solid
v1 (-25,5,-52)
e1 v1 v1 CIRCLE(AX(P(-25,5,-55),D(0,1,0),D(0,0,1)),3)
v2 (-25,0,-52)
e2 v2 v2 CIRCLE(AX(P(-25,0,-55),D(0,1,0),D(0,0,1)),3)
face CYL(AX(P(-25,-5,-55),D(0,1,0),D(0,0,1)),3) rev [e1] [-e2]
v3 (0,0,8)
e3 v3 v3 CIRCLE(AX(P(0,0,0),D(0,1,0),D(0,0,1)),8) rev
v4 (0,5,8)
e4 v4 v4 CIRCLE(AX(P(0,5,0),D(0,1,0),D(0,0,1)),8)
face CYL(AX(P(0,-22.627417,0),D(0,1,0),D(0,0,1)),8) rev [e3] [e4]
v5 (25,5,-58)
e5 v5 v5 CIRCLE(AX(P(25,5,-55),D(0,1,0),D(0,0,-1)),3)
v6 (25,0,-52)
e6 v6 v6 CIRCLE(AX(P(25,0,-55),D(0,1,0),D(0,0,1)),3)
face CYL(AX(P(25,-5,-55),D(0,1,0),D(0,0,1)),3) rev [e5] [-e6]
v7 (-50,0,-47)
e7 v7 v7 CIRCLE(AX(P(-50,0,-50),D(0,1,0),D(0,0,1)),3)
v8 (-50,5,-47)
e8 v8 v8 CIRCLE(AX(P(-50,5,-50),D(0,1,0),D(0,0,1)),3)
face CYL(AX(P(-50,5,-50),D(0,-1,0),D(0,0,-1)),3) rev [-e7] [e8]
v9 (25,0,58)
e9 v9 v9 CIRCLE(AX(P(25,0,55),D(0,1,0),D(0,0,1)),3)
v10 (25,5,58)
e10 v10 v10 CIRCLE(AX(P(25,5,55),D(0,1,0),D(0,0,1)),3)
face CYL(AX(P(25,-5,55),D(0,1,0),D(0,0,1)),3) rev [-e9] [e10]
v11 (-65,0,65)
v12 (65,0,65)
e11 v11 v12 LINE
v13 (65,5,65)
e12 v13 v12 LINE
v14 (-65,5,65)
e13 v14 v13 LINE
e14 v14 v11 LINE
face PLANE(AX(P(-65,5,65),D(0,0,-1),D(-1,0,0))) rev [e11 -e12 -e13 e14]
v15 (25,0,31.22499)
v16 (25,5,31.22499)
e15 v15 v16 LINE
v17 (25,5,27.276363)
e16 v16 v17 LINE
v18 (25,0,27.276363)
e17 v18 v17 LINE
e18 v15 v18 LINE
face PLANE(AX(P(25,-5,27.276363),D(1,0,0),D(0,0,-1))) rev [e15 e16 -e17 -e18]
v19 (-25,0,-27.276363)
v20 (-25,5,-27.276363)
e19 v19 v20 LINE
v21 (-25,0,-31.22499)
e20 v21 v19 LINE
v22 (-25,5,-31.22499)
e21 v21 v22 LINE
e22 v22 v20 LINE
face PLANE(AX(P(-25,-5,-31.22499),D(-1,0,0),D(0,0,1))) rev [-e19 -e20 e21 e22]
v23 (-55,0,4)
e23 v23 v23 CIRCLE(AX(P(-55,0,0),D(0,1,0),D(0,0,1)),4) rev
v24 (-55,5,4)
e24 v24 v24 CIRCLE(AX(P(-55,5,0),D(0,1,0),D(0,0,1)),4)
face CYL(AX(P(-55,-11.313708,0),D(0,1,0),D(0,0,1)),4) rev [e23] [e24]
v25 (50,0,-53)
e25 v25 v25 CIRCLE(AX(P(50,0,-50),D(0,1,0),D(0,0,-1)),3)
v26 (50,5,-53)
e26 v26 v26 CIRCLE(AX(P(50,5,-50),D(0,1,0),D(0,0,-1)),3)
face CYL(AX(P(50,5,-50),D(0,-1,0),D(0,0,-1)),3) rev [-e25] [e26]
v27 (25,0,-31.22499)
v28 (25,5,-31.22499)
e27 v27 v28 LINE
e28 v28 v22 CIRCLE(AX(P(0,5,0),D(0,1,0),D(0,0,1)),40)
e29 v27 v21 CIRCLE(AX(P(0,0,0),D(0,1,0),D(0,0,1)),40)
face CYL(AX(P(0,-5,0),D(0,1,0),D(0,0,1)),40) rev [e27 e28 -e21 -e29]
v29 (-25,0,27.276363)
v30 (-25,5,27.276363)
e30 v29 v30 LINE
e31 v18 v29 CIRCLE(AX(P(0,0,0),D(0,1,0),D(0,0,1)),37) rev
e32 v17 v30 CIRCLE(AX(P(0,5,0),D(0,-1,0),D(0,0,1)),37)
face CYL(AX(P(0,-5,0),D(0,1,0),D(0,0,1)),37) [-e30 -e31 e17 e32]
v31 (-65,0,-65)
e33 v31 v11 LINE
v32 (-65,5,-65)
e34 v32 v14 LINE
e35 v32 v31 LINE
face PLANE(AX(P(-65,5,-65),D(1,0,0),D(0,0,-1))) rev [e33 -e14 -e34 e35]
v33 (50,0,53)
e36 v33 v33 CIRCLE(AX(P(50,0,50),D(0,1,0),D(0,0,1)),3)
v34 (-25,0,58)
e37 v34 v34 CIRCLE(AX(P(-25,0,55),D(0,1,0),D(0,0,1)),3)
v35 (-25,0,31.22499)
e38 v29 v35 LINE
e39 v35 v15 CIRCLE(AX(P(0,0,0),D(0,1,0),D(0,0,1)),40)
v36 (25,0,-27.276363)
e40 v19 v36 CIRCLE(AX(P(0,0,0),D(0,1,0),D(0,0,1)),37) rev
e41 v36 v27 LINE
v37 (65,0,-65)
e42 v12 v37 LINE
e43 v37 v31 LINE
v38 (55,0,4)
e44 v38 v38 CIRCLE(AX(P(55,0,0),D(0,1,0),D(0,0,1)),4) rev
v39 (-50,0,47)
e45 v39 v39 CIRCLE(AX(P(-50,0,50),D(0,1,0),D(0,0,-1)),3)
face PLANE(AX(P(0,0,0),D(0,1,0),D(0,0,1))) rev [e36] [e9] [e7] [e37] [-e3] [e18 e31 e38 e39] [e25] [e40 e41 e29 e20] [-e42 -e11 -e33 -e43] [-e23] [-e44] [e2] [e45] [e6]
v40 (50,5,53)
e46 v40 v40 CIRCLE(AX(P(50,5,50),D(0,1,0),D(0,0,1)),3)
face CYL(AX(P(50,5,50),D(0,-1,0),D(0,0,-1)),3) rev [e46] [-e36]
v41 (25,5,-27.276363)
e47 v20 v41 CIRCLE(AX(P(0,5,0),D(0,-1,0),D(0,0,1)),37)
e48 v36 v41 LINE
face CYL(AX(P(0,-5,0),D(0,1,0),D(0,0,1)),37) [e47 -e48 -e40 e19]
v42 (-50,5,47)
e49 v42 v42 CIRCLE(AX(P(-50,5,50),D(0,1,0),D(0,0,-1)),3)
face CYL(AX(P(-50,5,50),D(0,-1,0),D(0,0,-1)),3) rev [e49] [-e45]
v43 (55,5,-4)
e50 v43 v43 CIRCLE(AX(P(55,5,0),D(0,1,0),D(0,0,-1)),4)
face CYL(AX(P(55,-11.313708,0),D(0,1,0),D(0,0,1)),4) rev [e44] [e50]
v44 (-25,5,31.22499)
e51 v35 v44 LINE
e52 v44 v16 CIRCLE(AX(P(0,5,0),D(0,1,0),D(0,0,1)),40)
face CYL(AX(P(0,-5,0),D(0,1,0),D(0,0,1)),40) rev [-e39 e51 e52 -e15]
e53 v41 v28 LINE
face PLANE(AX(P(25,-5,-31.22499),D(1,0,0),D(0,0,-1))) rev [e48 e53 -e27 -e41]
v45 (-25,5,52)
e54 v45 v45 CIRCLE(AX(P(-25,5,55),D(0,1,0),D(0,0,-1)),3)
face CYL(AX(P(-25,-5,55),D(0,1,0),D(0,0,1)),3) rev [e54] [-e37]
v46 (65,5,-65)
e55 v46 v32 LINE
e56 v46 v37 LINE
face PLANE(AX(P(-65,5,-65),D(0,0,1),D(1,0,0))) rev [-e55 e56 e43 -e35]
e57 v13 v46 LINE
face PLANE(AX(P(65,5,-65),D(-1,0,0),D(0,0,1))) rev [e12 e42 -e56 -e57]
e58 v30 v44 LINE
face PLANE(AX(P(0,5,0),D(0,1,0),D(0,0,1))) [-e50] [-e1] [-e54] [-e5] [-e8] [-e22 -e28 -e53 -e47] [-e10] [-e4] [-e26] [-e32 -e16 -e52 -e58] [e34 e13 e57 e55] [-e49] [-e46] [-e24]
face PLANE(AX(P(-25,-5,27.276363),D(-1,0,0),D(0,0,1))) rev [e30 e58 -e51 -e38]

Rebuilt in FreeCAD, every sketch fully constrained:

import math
import FreeCAD as App
import Part
import Sketcher
from FreeCAD import Vector


def add_polygon(sketch, points):
    """Adds a closed chain of lines whose ends are joined by coincident constraints."""
    first, n = sketch.GeometryCount, len(points)
    for a, b in zip(points, points[1:] + points[:1]):
        sketch.addGeometry(Part.LineSegment(App.Vector(*a, 0), App.Vector(*b, 0)), False)
    for i in range(n):
        sketch.addConstraint(Sketcher.Constraint("Coincident", first + i, 2, first + (i + 1) % n, 1))

doc = App.newDocument("Part")
params = doc.addObject("Spreadsheet::Sheet", "Params")
for row, (alias, value) in enumerate([
    ("sketch1_diameter", "6 mm"),
    ("sketch1_width", "130 mm"),
    ("pad1_length", "5 mm"),
    ("sketch2_diameter", "16 mm"),
    ("pocket1_length", "5 mm"),
    ("sketch3_diameter", "8 mm"),
    ("pocket2_length", "5 mm"),
    ("sketch4_diameter", "6 mm"),
    ("pocket3_length", "10 mm"),
    ("sketch5_radius", "40 mm"),
    ("sketch5_radius2", "37 mm"),
    ("pocket4_length", "10 mm"),
], start=1):
    params.set(f"A{row}", alias)
    params.set(f"B{row}", "=" + value)
    params.setAlias(f"B{row}", alias)

body = doc.addObject("PartDesign::Body", "Body")

# Sketch on XZ plane
sketch1 = doc.addObject("Sketcher::SketchObject", "Sketch")
body.addObject(sketch1)
sketch1.AttachmentSupport = (doc.XZ_Plane, [""])
sketch1.MapMode = "FlatFace"
add_polygon(sketch1, [(-65, -65), (-65, 65), (65, 65), (65, -65)])  # lines 0-3
sketch1.addGeometry(Part.Circle(Vector(-50, 50, 0), Vector(0, 0, 1), 3), False)  # 4
sketch1.addGeometry(Part.Circle(Vector(50, 50, 0), Vector(0, 0, 1), 3), False)  # 5
sketch1.addGeometry(Part.Circle(Vector(-50, -50, 0), Vector(0, 0, 1), 3), False)  # 6
sketch1.addGeometry(Part.Circle(Vector(50, -50, 0), Vector(0, 0, 1), 3), False)  # 7
sketch1.addConstraint([
    Sketcher.Constraint("Vertical", 0),
    Sketcher.Constraint("Horizontal", 1),
    Sketcher.Constraint("Vertical", 2),
    Sketcher.Constraint("Horizontal", 3),
    Sketcher.Constraint("Equal", 4, 5),
    Sketcher.Constraint("Equal", 5, 6),
    Sketcher.Constraint("Equal", 6, 7),
    Sketcher.Constraint("Symmetric", 5, 3, 6, 3, -1, 1),
    Sketcher.Constraint("Symmetric", 4, 3, 7, 3, -1, 1),
    Sketcher.Constraint("Symmetric", 0, 2, 2, 2, -1, 1),
    Sketcher.Constraint("Symmetric", 4, 3, 5, 3, -2),
    Sketcher.Constraint("Equal", 3, 0),
    Sketcher.Constraint("Diameter", 4, 6.0),
    Sketcher.Constraint("DistanceX", 1, 1, 1, 2, 130.0),
    Sketcher.Constraint("DistanceX", 4, 3, -1, 1, 50.0),
    Sketcher.Constraint("DistanceY", -1, 1, 4, 3, 50.0),
])
sketch1.setExpression("Constraints[16]", "Params.sketch1_diameter")
sketch1.setExpression("Constraints[17]", "Params.sketch1_width")
pad1 = doc.addObject("PartDesign::Pad", "Pad")
body.addObject(pad1)
pad1.Profile = sketch1
pad1.setExpression("Length", "Params.pad1_length")
pad1.Reversed = True

# Sketch on XZ plane
sketch2 = doc.addObject("Sketcher::SketchObject", "Sketch001")
body.addObject(sketch2)
sketch2.AttachmentSupport = (doc.XZ_Plane, [""])
sketch2.MapMode = "FlatFace"
sketch2.AttachmentOffset = App.Placement(Vector(0, 0, -5), App.Rotation())
sketch2.addGeometry(Part.Circle(Vector(0, 0, 0), Vector(0, 0, 1), 8), False)
sketch2.addConstraint([
    Sketcher.Constraint("Coincident", 0, 3, -1, 1),
    Sketcher.Constraint("Diameter", 0, 16.0),
])
sketch2.setExpression("Constraints[1]", "Params.sketch2_diameter")
pocket1 = doc.addObject("PartDesign::Pocket", "Pocket")
body.addObject(pocket1)
pocket1.Profile = sketch2
pocket1.setExpression("Length", "Params.pocket1_length")
pocket1.Reversed = True

# Sketch on XZ plane
sketch3 = doc.addObject("Sketcher::SketchObject", "Sketch002")
body.addObject(sketch3)
sketch3.AttachmentSupport = (doc.XZ_Plane, [""])
sketch3.MapMode = "FlatFace"
sketch3.AttachmentOffset = App.Placement(Vector(0, 0, -5), App.Rotation())
sketch3.addGeometry([
    Part.Circle(Vector(-55, 0, 0), Vector(0, 0, 1), 4),
    Part.Circle(Vector(55, 0, 0), Vector(0, 0, 1), 4),
], False)
sketch3.addConstraint([
    Sketcher.Constraint("Equal", 0, 1),
    Sketcher.Constraint("Symmetric", 0, 3, 1, 3, -1, 1),
    Sketcher.Constraint("PointOnObject", 0, 3, -1),
    Sketcher.Constraint("Diameter", 0, 8.0),
    Sketcher.Constraint("DistanceX", 0, 3, -1, 1, 55.0),
])
sketch3.setExpression("Constraints[3]", "Params.sketch3_diameter")
pocket2 = doc.addObject("PartDesign::Pocket", "Pocket001")
body.addObject(pocket2)
pocket2.Profile = sketch3
pocket2.setExpression("Length", "Params.pocket2_length")
pocket2.Reversed = True

# Sketch on XZ plane
sketch4 = doc.addObject("Sketcher::SketchObject", "Sketch003")
body.addObject(sketch4)
sketch4.AttachmentSupport = (doc.XZ_Plane, [""])
sketch4.MapMode = "FlatFace"
sketch4.AttachmentOffset = App.Placement(Vector(0, 0, -5), App.Rotation())
sketch4.addGeometry([
    Part.Circle(Vector(-25, -55, 0), Vector(0, 0, 1), 3),
    Part.Circle(Vector(25, -55, 0), Vector(0, 0, 1), 3),
    Part.Circle(Vector(-25, 55, 0), Vector(0, 0, 1), 3),
    Part.Circle(Vector(25, 55, 0), Vector(0, 0, 1), 3),
], False)
sketch4.addConstraint([
    Sketcher.Constraint("Equal", 0, 1),
    Sketcher.Constraint("Equal", 1, 2),
    Sketcher.Constraint("Equal", 2, 3),
    Sketcher.Constraint("Symmetric", 1, 3, 2, 3, -1, 1),
    Sketcher.Constraint("Symmetric", 0, 3, 3, 3, -1, 1),
    Sketcher.Constraint("Symmetric", 0, 3, 1, 3, -2),
    Sketcher.Constraint("Diameter", 0, 6.0),
    Sketcher.Constraint("DistanceX", 0, 3, -1, 1, 25.0),
    Sketcher.Constraint("DistanceY", 0, 3, -1, 1, 55.0),
])
sketch4.setExpression("Constraints[6]", "Params.sketch4_diameter")
pocket3 = doc.addObject("PartDesign::Pocket", "Pocket002")
body.addObject(pocket3)
pocket3.Profile = sketch4
pocket3.setExpression("Length", "Params.pocket3_length")
pocket3.Reversed = True

# Sketch on XZ plane
sketch5 = doc.addObject("Sketcher::SketchObject", "Sketch004")
body.addObject(sketch5)
sketch5.AttachmentSupport = (doc.XZ_Plane, [""])
sketch5.MapMode = "FlatFace"
sketch5.AttachmentOffset = App.Placement(Vector(0, 0, -5), App.Rotation())
sketch5.addGeometry([
    Part.LineSegment(Vector(25, -27.3, 0), Vector(25, -31.2, 0)),  # 0
    Part.ArcOfCircle(Part.Circle(Vector(0, 0, 0), Vector(0, 0, 1), 40), math.radians(-129), math.radians(-51)),  # 1
    Part.LineSegment(Vector(-25, -31.2, 0), Vector(-25, -27.3, 0)),  # 2
    Part.ArcOfCircle(Part.Circle(Vector(0, 0, 0), Vector(0, 0, 1), 37), math.radians(-133), math.radians(-47)),  # 3
    Part.LineSegment(Vector(25, 31.2, 0), Vector(25, 27.3, 0)),  # 4
    Part.ArcOfCircle(Part.Circle(Vector(0, 0, 0), Vector(0, 0, 1), 37), math.radians(47), math.radians(133)),  # 5
    Part.LineSegment(Vector(-25, 27.3, 0), Vector(-25, 31.2, 0)),  # 6
    Part.ArcOfCircle(Part.Circle(Vector(0, 0, 0), Vector(0, 0, 1), 40), math.radians(51), math.radians(129)),  # 7
], False)
sketch5.addConstraint([
    Sketcher.Constraint("Coincident", 0, 2, 1, 2),
    Sketcher.Constraint("Coincident", 1, 1, 2, 1),
    Sketcher.Constraint("Coincident", 2, 2, 3, 1),
    Sketcher.Constraint("Coincident", 3, 2, 0, 1),
    Sketcher.Constraint("Coincident", 4, 2, 5, 1),
    Sketcher.Constraint("Coincident", 5, 2, 6, 1),
    Sketcher.Constraint("Coincident", 6, 2, 7, 2),
    Sketcher.Constraint("Coincident", 7, 1, 4, 1),
    Sketcher.Constraint("Vertical", 0),
    Sketcher.Constraint("Vertical", 2),
    Sketcher.Constraint("Vertical", 4),
    Sketcher.Constraint("Vertical", 6),
    Sketcher.Constraint("Coincident", 1, 3, -1, 1),
    Sketcher.Constraint("Coincident", 3, 3, -1, 1),
    Sketcher.Constraint("Coincident", 5, 3, -1, 1),
    Sketcher.Constraint("Coincident", 7, 3, -1, 1),
    Sketcher.Constraint("Equal", 3, 5),
    Sketcher.Constraint("Equal", 1, 7),
    Sketcher.Constraint("Horizontal", 0, 2, 1, 1),
    Sketcher.Constraint("Horizontal", 4, 2, 5, 2),
    Sketcher.Constraint("Vertical", 3, 2, 4, 2),
    Sketcher.Constraint("Radius", 1, 40.0),
    Sketcher.Constraint("Radius", 3, 37.0),
    Sketcher.Constraint("DistanceX", -1, 1, 0, 2, 25.0),
])
sketch5.setExpression("Constraints[21]", "Params.sketch5_radius")
sketch5.setExpression("Constraints[22]", "Params.sketch5_radius2")
pocket4 = doc.addObject("PartDesign::Pocket", "Pocket003")
body.addObject(pocket4)
pocket4.Profile = sketch5
pocket4.setExpression("Length", "Params.pocket4_length")
pocket4.Reversed = True

doc.recompute()
